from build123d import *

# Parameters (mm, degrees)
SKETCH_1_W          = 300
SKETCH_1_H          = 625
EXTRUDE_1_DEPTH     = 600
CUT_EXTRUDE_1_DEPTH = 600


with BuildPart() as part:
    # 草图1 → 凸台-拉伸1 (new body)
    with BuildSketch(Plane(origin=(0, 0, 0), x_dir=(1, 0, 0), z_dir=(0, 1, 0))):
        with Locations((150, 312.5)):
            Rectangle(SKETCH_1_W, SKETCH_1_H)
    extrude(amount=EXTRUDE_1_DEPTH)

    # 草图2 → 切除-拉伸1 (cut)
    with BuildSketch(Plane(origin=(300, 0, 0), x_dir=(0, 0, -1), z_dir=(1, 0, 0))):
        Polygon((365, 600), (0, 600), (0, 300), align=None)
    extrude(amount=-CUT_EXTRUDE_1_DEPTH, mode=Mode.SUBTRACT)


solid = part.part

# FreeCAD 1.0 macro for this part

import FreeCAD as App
import Part
import Sketcher


def add_polygon(sketch, points):
    """Adds a closed chain of lines whose ends are joined by coincident constraints."""
    first, n = sketch.GeometryCount, len(points)
    for a, b in zip(points, points[1:] + points[:1]):
        sketch.addGeometry(Part.LineSegment(App.Vector(*a, 0), App.Vector(*b, 0)), False)
    for i in range(n):
        sketch.addConstraint(Sketcher.Constraint("Coincident", first + i, 2, first + (i + 1) % n, 1))

doc = App.newDocument("Part")
body = doc.addObject("PartDesign::Body", "Body")

# Sketch on XZ plane
sketch1 = body.newObject("Sketcher::SketchObject", "Sketch")
sketch1.AttachmentSupport = (doc.getObject("XZ_Plane"), [""])
sketch1.MapMode = "FlatFace"
add_polygon(sketch1, [(0, -625), (0, 0), (300, 0), (300, -625)])  # lines 0-3
sketch1.addConstraint(Sketcher.Constraint("Vertical", 0))
sketch1.addConstraint(Sketcher.Constraint("Horizontal", 1))
sketch1.addConstraint(Sketcher.Constraint("Vertical", 2))
sketch1.addConstraint(Sketcher.Constraint("Horizontal", 3))
sketch1.addConstraint(Sketcher.Constraint("Coincident", 0, 2, -1, 1))
sketch1.addConstraint(Sketcher.Constraint("DistanceX", 1, 1, 1, 2, 300.0))
sketch1.addConstraint(Sketcher.Constraint("DistanceY", 0, 1, 0, 2, 625.0))
pad1 = body.newObject("PartDesign::Pad", "Pad")
pad1.Profile = sketch1
pad1.Length = 600
pad1.Reversed = True

# Sketch on YZ plane
sketch2 = body.newObject("Sketcher::SketchObject", "Sketch001")
sketch2.AttachmentSupport = (doc.getObject("YZ_Plane"), [""])
sketch2.MapMode = "FlatFace"
sketch2.AttachmentOffset = App.Placement(App.Vector(0, 0, 300), App.Rotation())
add_polygon(sketch2, [(600, -365), (600, 0), (300, 0)])  # lines 0-2
sketch2.addConstraint(Sketcher.Constraint("Vertical", 0))
sketch2.addConstraint(Sketcher.Constraint("Horizontal", 1))
sketch2.addConstraint(Sketcher.Constraint("PointOnObject", 0, 2, -1))
sketch2.addConstraint(Sketcher.Constraint("DistanceX", 1, 2, 1, 1, 300.0))
sketch2.addConstraint(Sketcher.Constraint("DistanceY", 0, 1, 0, 2, 365.0))
sketch2.addConstraint(Sketcher.Constraint("DistanceX", -1, 1, 0, 2, 600.0))
pocket1 = body.newObject("PartDesign::Pocket", "Pocket")
pocket1.Profile = sketch2
pocket1.Length = 600

doc.recompute()
